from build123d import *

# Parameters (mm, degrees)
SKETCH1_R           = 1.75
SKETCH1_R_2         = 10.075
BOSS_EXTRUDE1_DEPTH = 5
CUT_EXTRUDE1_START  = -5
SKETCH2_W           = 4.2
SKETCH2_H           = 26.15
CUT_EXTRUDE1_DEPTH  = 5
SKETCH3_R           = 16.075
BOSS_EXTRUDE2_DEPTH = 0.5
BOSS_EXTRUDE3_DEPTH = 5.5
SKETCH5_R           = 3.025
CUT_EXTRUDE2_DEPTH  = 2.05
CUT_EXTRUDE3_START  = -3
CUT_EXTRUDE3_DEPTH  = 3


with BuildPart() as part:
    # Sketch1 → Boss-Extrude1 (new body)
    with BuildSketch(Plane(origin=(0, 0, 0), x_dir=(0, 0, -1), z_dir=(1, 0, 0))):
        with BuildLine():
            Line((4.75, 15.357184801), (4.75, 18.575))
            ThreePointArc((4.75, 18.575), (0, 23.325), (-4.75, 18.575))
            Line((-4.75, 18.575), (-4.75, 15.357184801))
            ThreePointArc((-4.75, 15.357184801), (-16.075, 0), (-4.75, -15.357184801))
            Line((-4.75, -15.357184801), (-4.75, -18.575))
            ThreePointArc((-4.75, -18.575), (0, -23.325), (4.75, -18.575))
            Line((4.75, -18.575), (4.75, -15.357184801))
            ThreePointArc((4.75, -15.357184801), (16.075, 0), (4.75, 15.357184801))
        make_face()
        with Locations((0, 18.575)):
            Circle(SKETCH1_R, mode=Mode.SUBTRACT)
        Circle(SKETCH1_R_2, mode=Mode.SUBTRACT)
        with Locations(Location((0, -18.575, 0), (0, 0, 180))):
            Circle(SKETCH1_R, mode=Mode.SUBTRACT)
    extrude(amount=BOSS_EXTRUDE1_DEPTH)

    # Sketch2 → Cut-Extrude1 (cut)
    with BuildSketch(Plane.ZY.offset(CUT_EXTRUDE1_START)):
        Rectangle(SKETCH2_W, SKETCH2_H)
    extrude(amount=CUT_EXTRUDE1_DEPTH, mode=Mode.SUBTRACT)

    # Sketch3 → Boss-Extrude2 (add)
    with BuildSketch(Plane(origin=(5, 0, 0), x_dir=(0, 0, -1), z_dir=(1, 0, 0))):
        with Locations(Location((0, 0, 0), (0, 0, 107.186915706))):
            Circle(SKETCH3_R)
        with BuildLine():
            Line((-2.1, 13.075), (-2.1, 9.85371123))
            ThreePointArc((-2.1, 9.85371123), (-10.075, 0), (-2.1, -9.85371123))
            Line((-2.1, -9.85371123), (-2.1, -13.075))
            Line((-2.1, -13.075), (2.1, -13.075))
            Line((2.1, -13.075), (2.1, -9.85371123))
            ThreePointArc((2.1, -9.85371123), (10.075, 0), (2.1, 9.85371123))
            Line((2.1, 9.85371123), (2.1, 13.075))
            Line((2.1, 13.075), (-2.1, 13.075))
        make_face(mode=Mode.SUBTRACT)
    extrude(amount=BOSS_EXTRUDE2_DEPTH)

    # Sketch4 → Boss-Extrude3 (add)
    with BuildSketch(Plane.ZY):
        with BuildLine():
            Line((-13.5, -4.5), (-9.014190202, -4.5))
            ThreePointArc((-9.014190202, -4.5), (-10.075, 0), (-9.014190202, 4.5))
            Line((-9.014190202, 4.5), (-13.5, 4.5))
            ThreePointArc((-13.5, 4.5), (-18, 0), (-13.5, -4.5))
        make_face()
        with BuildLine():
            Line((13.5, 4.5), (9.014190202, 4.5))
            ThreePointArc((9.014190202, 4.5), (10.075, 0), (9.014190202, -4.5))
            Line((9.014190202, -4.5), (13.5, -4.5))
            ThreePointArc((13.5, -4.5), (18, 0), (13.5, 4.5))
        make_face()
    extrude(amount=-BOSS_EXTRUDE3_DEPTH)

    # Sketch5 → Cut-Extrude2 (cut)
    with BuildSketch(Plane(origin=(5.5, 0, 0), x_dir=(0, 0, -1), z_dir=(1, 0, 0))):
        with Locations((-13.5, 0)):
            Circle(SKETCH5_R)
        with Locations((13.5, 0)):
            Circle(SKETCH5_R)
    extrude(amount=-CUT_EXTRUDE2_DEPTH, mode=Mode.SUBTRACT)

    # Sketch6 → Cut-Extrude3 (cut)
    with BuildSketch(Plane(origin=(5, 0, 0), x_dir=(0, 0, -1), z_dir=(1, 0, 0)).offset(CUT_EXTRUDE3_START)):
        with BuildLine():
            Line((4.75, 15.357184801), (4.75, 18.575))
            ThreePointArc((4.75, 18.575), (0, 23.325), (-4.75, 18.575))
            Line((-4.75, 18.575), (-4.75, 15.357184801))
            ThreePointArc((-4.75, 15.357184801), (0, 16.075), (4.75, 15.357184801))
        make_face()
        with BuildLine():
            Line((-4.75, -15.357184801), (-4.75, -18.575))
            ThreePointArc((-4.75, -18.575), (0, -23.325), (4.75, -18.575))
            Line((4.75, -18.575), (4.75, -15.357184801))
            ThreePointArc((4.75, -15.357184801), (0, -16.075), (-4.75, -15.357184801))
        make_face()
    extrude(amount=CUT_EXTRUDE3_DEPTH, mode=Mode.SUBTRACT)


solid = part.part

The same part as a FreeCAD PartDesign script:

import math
import FreeCAD as App
import Part
import Sketcher

doc = App.newDocument("Part")
params = doc.addObject("Spreadsheet::Sheet", "Params")
for row, (alias, value) in enumerate([
    ("sketch1_diameter", "3.5 mm"),
    ("sketch1_diameter2", "20.15 mm"),
    ("sketch1_radius", "4.75 mm"),
    ("pad1_length", "5 mm"),
    ("sketch2_height", "4.2 mm"),
    ("sketch2_width", "26.15 mm"),
    ("pocket1_length", "5 mm"),
    ("sketch3_diameter", "32.15 mm"),
    ("sketch3_height", "4.2 mm"),
    ("pad2_length", "0.5 mm"),
    ("sketch4_radius", "4.5 mm"),
    ("pad3_length", "5.5 mm"),
    ("sketch5_diameter", "6.05 mm"),
    ("pocket2_length", "2.05 mm"),
    ("sketch6_radius", "4.75 mm"),
    ("pocket3_length", "3 mm"),
], start=1):
    params.set(f"A{row}", alias)
    params.set(f"B{row}", "=" + value)
    params.setAlias(f"B{row}", alias)

body = doc.addObject("PartDesign::Body", "Body")

# Sketch on YZ plane
sketch1 = doc.addObject("Sketcher::SketchObject", "Sketch")
body.addObject(sketch1)
sketch1.AttachmentSupport = (doc.YZ_Plane, [""])
sketch1.MapMode = "FlatFace"
sketch1.addGeometry([
    Part.LineSegment(App.Vector(15.4, -4.8, 0), App.Vector(18.6, -4.8, 0)),  # 0
    Part.ArcOfCircle(Part.Circle(App.Vector(18.6, 0, 0), App.Vector(0, 0, 1), 4.8), math.radians(-90), math.radians(90)),  # 1
    Part.LineSegment(App.Vector(18.6, 4.8, 0), App.Vector(15.4, 4.8, 0)),  # 2
    Part.ArcOfCircle(Part.Circle(App.Vector(0, 0, 0), App.Vector(0, 0, 1), 16.1), math.radians(17), math.radians(163)),  # 3
    Part.LineSegment(App.Vector(-15.4, 4.8, 0), App.Vector(-18.6, 4.8, 0)),  # 4
    Part.ArcOfCircle(Part.Circle(App.Vector(-18.6, 0, 0), App.Vector(0, 0, 1), 4.8), math.radians(90), math.radians(270)),  # 5
    Part.LineSegment(App.Vector(-18.6, -4.8, 0), App.Vector(-15.4, -4.8, 0)),  # 6
    Part.ArcOfCircle(Part.Circle(App.Vector(0, 0, 0), App.Vector(0, 0, 1), 16.1), math.radians(-163), math.radians(-17)),  # 7
    Part.Circle(App.Vector(-18.6, 0, 0), App.Vector(0, 0, 1), 1.8),  # 8
    Part.Circle(App.Vector(0, 0, 0), App.Vector(0, 0, 1), 10.1),  # 9
    Part.Circle(App.Vector(18.6, 0, 0), App.Vector(0, 0, 1), 1.8),  # 10
], False)
sketch1.addConstraint([
    Sketcher.Constraint("Tangent", 0, 2, 1, 1),
    Sketcher.Constraint("Tangent", 1, 2, 2, 1),
    Sketcher.Constraint("Coincident", 2, 2, 3, 1),
    Sketcher.Constraint("Coincident", 3, 2, 4, 1),
    Sketcher.Constraint("Tangent", 4, 2, 5, 1),
    Sketcher.Constraint("Tangent", 5, 2, 6, 1),
    Sketcher.Constraint("Coincident", 6, 2, 7, 1),
    Sketcher.Constraint("Coincident", 7, 2, 0, 1),
    Sketcher.Constraint("Horizontal", 0),
    Sketcher.Constraint("Horizontal", 2),
    Sketcher.Constraint("Horizontal", 4),
    Sketcher.Constraint("Horizontal", 6),
    Sketcher.Constraint("Coincident", 3, 3, -1, 1),
    Sketcher.Constraint("Coincident", 7, 3, -1, 1),
    Sketcher.Constraint("Coincident", 9, 3, -1, 1),
    Sketcher.Constraint("Coincident", 8, 3, 5, 3),
    Sketcher.Constraint("Coincident", 10, 3, 1, 3),
    Sketcher.Constraint("Equal", 1, 5),
    Sketcher.Constraint("Equal", 3, 7),
    Sketcher.Constraint("Equal", 8, 10),
    Sketcher.Constraint("Symmetric", 1, 3, 5, 3, -1, 1),
    Sketcher.Constraint("PointOnObject", 1, 3, -1),
    Sketcher.Constraint("Diameter", 8, 3.5),
    Sketcher.Constraint("Diameter", 9, 20.15),
    Sketcher.Constraint("Radius", 1, 4.75),
    Sketcher.Constraint("Radius", 3, 16.075),
    Sketcher.Constraint("DistanceX", 5, 3, 1, 3, 37.15),
])
sketch1.setExpression("Constraints[22]", "Params.sketch1_diameter")
sketch1.setExpression("Constraints[23]", "Params.sketch1_diameter2")
sketch1.setExpression("Constraints[24]", "Params.sketch1_radius")
pad1 = doc.addObject("PartDesign::Pad", "Pad")
body.addObject(pad1)
pad1.Profile = sketch1
pad1.setExpression("Length", "Params.pad1_length")

# Sketch on YZ plane
sketch2 = doc.addObject("Sketcher::SketchObject", "Sketch001")
body.addObject(sketch2)
sketch2.AttachmentSupport = (doc.YZ_Plane, [""])
sketch2.MapMode = "FlatFace"
sketch2.AttachmentOffset = App.Placement(App.Vector(0, 0, 5), App.Rotation())
sketch2.addGeometry([
    Part.LineSegment(App.Vector(13.1, -2.1, 0), App.Vector(-13.1, -2.1, 0)),
    Part.LineSegment(App.Vector(-13.1, -2.1, 0), App.Vector(-13.1, 2.1, 0)),
    Part.LineSegment(App.Vector(-13.1, 2.1, 0), App.Vector(13.1, 2.1, 0)),
    Part.LineSegment(App.Vector(13.1, 2.1, 0), App.Vector(13.1, -2.1, 0)),
], False)
sketch2.addConstraint([
    Sketcher.Constraint("Coincident", 0, 2, 1, 1),
    Sketcher.Constraint("Coincident", 1, 2, 2, 1),
    Sketcher.Constraint("Coincident", 2, 2, 3, 1),
    Sketcher.Constraint("Coincident", 3, 2, 0, 1),
    Sketcher.Constraint("Horizontal", 0),
    Sketcher.Constraint("Vertical", 1),
    Sketcher.Constraint("Horizontal", 2),
    Sketcher.Constraint("Vertical", 3),
    Sketcher.Constraint("Symmetric", 0, 2, 2, 2, -1, 1),
    Sketcher.Constraint("DistanceY", 1, 1, 1, 2, 4.2),
    Sketcher.Constraint("DistanceX", 0, 2, 0, 1, 26.15),
])
sketch2.setExpression("Constraints[9]", "Params.sketch2_height")
sketch2.setExpression("Constraints[10]", "Params.sketch2_width")
pocket1 = doc.addObject("PartDesign::Pocket", "Pocket")
body.addObject(pocket1)
pocket1.Profile = sketch2
pocket1.setExpression("Length", "Params.pocket1_length")

# Sketch on YZ plane
sketch3 = doc.addObject("Sketcher::SketchObject", "Sketch002")
body.addObject(sketch3)
sketch3.AttachmentSupport = (doc.YZ_Plane, [""])
sketch3.MapMode = "FlatFace"
sketch3.AttachmentOffset = App.Placement(App.Vector(0, 0, 5), App.Rotation())
sketch3.addGeometry([
    Part.Circle(App.Vector(0, 0, 0), App.Vector(0, 0, 1), 16.1),  # 0
    Part.LineSegment(App.Vector(9.9, 2.1, 0), App.Vector(13.1, 2.1, 0)),  # 1
    Part.LineSegment(App.Vector(13.1, 2.1, 0), App.Vector(13.1, -2.1, 0)),  # 2
    Part.LineSegment(App.Vector(13.1, -2.1, 0), App.Vector(9.9, -2.1, 0)),  # 3
    Part.ArcOfCircle(Part.Circle(App.Vector(0, 0, 0), App.Vector(0, 0, 1), 10.1), math.radians(-168), math.radians(-12)),  # 4
    Part.LineSegment(App.Vector(-9.9, -2.1, 0), App.Vector(-13.1, -2.1, 0)),  # 5
    Part.LineSegment(App.Vector(-13.1, -2.1, 0), App.Vector(-13.1, 2.1, 0)),  # 6
    Part.LineSegment(App.Vector(-13.1, 2.1, 0), App.Vector(-9.9, 2.1, 0)),  # 7
    Part.ArcOfCircle(Part.Circle(App.Vector(0, 0, 0), App.Vector(0, 0, 1), 10.1), math.radians(12), math.radians(168)),  # 8
], False)
sketch3.addConstraint([
    Sketcher.Constraint("Coincident", 1, 2, 2, 1),
    Sketcher.Constraint("Coincident", 2, 2, 3, 1),
    Sketcher.Constraint("Coincident", 3, 2, 4, 2),
    Sketcher.Constraint("Coincident", 4, 1, 5, 1),
    Sketcher.Constraint("Coincident", 5, 2, 6, 1),
    Sketcher.Constraint("Coincident", 6, 2, 7, 1),
    Sketcher.Constraint("Coincident", 7, 2, 8, 2),
    Sketcher.Constraint("Coincident", 8, 1, 1, 1),
    Sketcher.Constraint("Horizontal", 1),
    Sketcher.Constraint("Vertical", 2),
    Sketcher.Constraint("Horizontal", 3),
    Sketcher.Constraint("Horizontal", 5),
    Sketcher.Constraint("Vertical", 6),
    Sketcher.Constraint("Horizontal", 7),
    Sketcher.Constraint("Coincident", 0, 3, -1, 1),
    Sketcher.Constraint("Coincident", 4, 3, -1, 1),
    Sketcher.Constraint("Coincident", 8, 3, -1, 1),
    Sketcher.Constraint("Equal", 4, 8),
    Sketcher.Constraint("Symmetric", 1, 2, 5, 2, -1, 1),
    Sketcher.Constraint("Horizontal", 3, 2, 4, 1),
    Sketcher.Constraint("Horizontal", 1, 2, 6, 2),
    Sketcher.Constraint("Diameter", 0, 32.15),
    Sketcher.Constraint("DistanceY", 2, 2, 2, 1, 4.2),
    Sketcher.Constraint("Radius", 4, 10.075),
    Sketcher.Constraint("DistanceX", -1, 1, 1, 2, 13.075),
])
sketch3.setExpression("Constraints[21]", "Params.sketch3_diameter")
sketch3.setExpression("Constraints[22]", "Params.sketch3_height")
pad2 = doc.addObject("PartDesign::Pad", "Pad001")
body.addObject(pad2)
pad2.Profile = sketch3
pad2.setExpression("Length", "Params.pad2_length")

# Sketch on YZ plane
sketch4 = doc.addObject("Sketcher::SketchObject", "Sketch003")
body.addObject(sketch4)
sketch4.AttachmentSupport = (doc.YZ_Plane, [""])
sketch4.MapMode = "FlatFace"
sketch4.addGeometry([
    Part.LineSegment(App.Vector(-4.5, -13.5, 0), App.Vector(-4.5, -9, 0)),  # 0
    Part.ArcOfCircle(Part.Circle(App.Vector(0, 0, 0), App.Vector(0, 0, 1), 10.1), math.radians(-117), math.radians(-63)),  # 1
    Part.LineSegment(App.Vector(4.5, -9, 0), App.Vector(4.5, -13.5, 0)),  # 2
    Part.ArcOfCircle(Part.Circle(App.Vector(0, -13.5, 0), App.Vector(0, 0, 1), 4.5), math.radians(180), math.radians(360)),  # 3
    Part.LineSegment(App.Vector(4.5, 13.5, 0), App.Vector(4.5, 9, 0)),  # 4
    Part.ArcOfCircle(Part.Circle(App.Vector(0, 0, 0), App.Vector(0, 0, 1), 10.1), math.radians(63), math.radians(117)),  # 5
    Part.LineSegment(App.Vector(-4.5, 9, 0), App.Vector(-4.5, 13.5, 0)),  # 6
    Part.ArcOfCircle(Part.Circle(App.Vector(0, 13.5, 0), App.Vector(0, 0, 1), 4.5), math.radians(0), math.radians(180)),  # 7
], False)
sketch4.addConstraint([
    Sketcher.Constraint("Coincident", 0, 2, 1, 1),
    Sketcher.Constraint("Coincident", 1, 2, 2, 1),
    Sketcher.Constraint("Tangent", 2, 2, 3, 2),
    Sketcher.Constraint("Tangent", 3, 1, 0, 1),
    Sketcher.Constraint("Coincident", 4, 2, 5, 1),
    Sketcher.Constraint("Coincident", 5, 2, 6, 1),
    Sketcher.Constraint("Tangent", 6, 2, 7, 2),
    Sketcher.Constraint("Tangent", 7, 1, 4, 1),
    Sketcher.Constraint("Vertical", 0),
    Sketcher.Constraint("Vertical", 2),
    Sketcher.Constraint("Vertical", 4),
    Sketcher.Constraint("Vertical", 6),
    Sketcher.Constraint("Coincident", 1, 3, -1, 1),
    Sketcher.Constraint("Coincident", 5, 3, -1, 1),
    Sketcher.Constraint("Equal", 1, 5),
    Sketcher.Constraint("Equal", 3, 7),
    Sketcher.Constraint("Symmetric", 3, 3, 7, 3, -1, 1),
    Sketcher.Constraint("PointOnObject", 3, 3, -2),
    Sketcher.Constraint("Radius", 3, 4.5),
    Sketcher.Constraint("Radius", 1, 10.075),
    Sketcher.Constraint("DistanceY", 3, 3, 7, 3, 27.0),
])
sketch4.setExpression("Constraints[18]", "Params.sketch4_radius")
pad3 = doc.addObject("PartDesign::Pad", "Pad002")
body.addObject(pad3)
pad3.Profile = sketch4
pad3.setExpression("Length", "Params.pad3_length")

# Sketch on YZ plane
sketch5 = doc.addObject("Sketcher::SketchObject", "Sketch004")
body.addObject(sketch5)
sketch5.AttachmentSupport = (doc.YZ_Plane, [""])
sketch5.MapMode = "FlatFace"
sketch5.AttachmentOffset = App.Placement(App.Vector(0, 0, 5.5), App.Rotation())
sketch5.addGeometry([
    Part.Circle(App.Vector(0, 13.5, 0), App.Vector(0, 0, 1), 3),
    Part.Circle(App.Vector(0, -13.5, 0), App.Vector(0, 0, 1), 3),
], False)
sketch5.addConstraint([
    Sketcher.Constraint("Equal", 0, 1),
    Sketcher.Constraint("Symmetric", 0, 3, 1, 3, -1, 1),
    Sketcher.Constraint("PointOnObject", 0, 3, -2),
    Sketcher.Constraint("Diameter", 0, 6.05),
    Sketcher.Constraint("DistanceY", 1, 3, 0, 3, 27.0),
])
sketch5.setExpression("Constraints[3]", "Params.sketch5_diameter")
pocket2 = doc.addObject("PartDesign::Pocket", "Pocket001")
body.addObject(pocket2)
pocket2.Profile = sketch5
pocket2.setExpression("Length", "Params.pocket2_length")

# Sketch on YZ plane
sketch6 = doc.addObject("Sketcher::SketchObject", "Sketch005")
body.addObject(sketch6)
sketch6.AttachmentSupport = (doc.YZ_Plane, [""])
sketch6.MapMode = "FlatFace"
sketch6.AttachmentOffset = App.Placement(App.Vector(0, 0, 2), App.Rotation())
sketch6.addGeometry([
    Part.LineSegment(App.Vector(15.4, -4.8, 0), App.Vector(18.6, -4.8, 0)),  # 0
    Part.ArcOfCircle(Part.Circle(App.Vector(18.6, 0, 0), App.Vector(0, 0, 1), 4.8), math.radians(-90), math.radians(90)),  # 1
    Part.LineSegment(App.Vector(18.6, 4.8, 0), App.Vector(15.4, 4.8, 0)),  # 2
    Part.ArcOfCircle(Part.Circle(App.Vector(0, 0, 0), App.Vector(0, 0, 1), 16.1), math.radians(-17), math.radians(17)),  # 3
    Part.LineSegment(App.Vector(-15.4, 4.8, 0), App.Vector(-18.6, 4.8, 0)),  # 4
    Part.ArcOfCircle(Part.Circle(App.Vector(-18.6, 0, 0), App.Vector(0, 0, 1), 4.8), math.radians(90), math.radians(270)),  # 5
    Part.LineSegment(App.Vector(-18.6, -4.8, 0), App.Vector(-15.4, -4.8, 0)),  # 6
    Part.ArcOfCircle(Part.Circle(App.Vector(0, 0, 0), App.Vector(0, 0, 1), 16.1), math.radians(163), math.radians(197)),  # 7
], False)
sketch6.addConstraint([
    Sketcher.Constraint("Tangent", 0, 2, 1, 1),
    Sketcher.Constraint("Tangent", 1, 2, 2, 1),
    Sketcher.Constraint("Coincident", 2, 2, 3, 2),
    Sketcher.Constraint("Coincident", 3, 1, 0, 1),
    Sketcher.Constraint("Tangent", 4, 2, 5, 1),
    Sketcher.Constraint("Tangent", 5, 2, 6, 1),
    Sketcher.Constraint("Coincident", 6, 2, 7, 2),
    Sketcher.Constraint("Coincident", 7, 1, 4, 1),
    Sketcher.Constraint("Horizontal", 0),
    Sketcher.Constraint("Horizontal", 2),
    Sketcher.Constraint("Horizontal", 4),
    Sketcher.Constraint("Horizontal", 6),
    Sketcher.Constraint("Coincident", 3, 3, -1, 1),
    Sketcher.Constraint("Coincident", 7, 3, -1, 1),
    Sketcher.Constraint("Equal", 1, 5),
    Sketcher.Constraint("Equal", 3, 7),
    Sketcher.Constraint("Symmetric", 1, 3, 5, 3, -1, 1),
    Sketcher.Constraint("PointOnObject", 1, 3, -1),
    Sketcher.Constraint("Radius", 1, 4.75),
    Sketcher.Constraint("Radius", 3, 16.075),
    Sketcher.Constraint("DistanceX", 5, 3, 1, 3, 37.15),
])
sketch6.setExpression("Constraints[18]", "Params.sketch6_radius")
pocket3 = doc.addObject("PartDesign::Pocket", "Pocket002")
body.addObject(pocket3)
pocket3.Profile = sketch6
pocket3.setExpression("Length", "Params.pocket3_length")
pocket3.Reversed = True

doc.recompute()
